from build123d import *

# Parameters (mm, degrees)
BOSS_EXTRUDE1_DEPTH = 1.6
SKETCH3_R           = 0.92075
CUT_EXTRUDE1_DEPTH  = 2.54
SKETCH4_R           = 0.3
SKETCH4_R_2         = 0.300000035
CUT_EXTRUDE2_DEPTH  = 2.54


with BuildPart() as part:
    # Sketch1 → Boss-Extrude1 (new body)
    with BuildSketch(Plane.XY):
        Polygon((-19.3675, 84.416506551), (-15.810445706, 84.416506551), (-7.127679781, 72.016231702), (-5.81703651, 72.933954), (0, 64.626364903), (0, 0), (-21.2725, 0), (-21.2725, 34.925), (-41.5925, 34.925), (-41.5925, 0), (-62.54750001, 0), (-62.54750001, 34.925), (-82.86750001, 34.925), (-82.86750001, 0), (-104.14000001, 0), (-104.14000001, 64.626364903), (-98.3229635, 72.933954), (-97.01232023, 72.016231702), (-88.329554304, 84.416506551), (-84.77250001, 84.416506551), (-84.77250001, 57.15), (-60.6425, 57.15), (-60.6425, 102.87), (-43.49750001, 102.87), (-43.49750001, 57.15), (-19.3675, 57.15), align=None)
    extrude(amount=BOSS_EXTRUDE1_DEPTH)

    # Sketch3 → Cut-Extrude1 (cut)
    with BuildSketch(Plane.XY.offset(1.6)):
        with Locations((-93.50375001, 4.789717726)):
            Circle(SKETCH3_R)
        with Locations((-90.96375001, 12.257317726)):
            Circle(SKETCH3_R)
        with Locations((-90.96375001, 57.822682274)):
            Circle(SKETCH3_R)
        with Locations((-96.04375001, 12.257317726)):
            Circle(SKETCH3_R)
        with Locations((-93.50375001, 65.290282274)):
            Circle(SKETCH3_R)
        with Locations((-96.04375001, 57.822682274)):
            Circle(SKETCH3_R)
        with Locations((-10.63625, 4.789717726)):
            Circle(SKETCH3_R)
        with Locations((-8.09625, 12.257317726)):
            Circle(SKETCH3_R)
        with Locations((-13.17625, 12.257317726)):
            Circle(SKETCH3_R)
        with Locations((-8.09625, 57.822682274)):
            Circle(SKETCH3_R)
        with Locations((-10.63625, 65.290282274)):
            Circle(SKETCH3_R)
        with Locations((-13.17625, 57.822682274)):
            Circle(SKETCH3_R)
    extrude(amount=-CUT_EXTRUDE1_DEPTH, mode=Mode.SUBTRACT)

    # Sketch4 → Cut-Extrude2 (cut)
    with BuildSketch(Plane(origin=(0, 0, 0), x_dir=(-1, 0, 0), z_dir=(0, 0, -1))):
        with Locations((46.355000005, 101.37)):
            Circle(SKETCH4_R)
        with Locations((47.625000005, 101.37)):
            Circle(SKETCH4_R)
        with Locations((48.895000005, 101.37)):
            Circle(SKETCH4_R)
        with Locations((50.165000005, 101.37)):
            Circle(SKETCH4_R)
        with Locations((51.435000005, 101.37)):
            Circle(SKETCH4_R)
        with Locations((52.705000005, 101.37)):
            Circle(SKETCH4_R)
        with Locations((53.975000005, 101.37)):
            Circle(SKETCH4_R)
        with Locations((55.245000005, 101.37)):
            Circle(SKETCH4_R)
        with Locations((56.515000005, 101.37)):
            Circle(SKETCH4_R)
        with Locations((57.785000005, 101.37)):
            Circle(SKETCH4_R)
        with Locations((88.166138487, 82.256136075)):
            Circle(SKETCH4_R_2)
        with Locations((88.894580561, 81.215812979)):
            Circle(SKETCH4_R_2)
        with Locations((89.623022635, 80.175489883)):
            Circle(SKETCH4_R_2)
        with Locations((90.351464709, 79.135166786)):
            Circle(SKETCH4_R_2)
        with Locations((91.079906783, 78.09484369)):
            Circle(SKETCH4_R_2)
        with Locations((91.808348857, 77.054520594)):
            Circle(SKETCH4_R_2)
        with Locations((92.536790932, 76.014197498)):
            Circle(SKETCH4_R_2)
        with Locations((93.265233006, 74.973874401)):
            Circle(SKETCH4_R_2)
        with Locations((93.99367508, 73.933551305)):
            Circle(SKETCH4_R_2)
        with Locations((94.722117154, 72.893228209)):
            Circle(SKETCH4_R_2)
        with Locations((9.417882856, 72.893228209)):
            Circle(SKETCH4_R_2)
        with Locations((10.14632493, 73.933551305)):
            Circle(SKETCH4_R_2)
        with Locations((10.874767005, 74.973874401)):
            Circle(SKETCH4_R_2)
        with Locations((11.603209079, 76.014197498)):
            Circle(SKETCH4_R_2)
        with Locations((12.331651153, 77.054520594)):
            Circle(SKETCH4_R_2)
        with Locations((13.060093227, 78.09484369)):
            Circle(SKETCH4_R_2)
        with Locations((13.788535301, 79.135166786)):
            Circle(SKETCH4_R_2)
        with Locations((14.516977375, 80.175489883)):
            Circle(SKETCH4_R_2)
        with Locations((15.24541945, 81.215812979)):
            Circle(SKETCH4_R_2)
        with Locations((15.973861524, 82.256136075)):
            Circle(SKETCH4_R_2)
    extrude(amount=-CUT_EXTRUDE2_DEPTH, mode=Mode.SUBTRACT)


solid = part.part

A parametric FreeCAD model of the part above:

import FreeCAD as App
import Part
import Sketcher
from FreeCAD import Vector
Q = App.Units.Quantity

doc = App.newDocument("Part")
body = doc.addObject("PartDesign::Body", "Body")

sketch1 = body.newObject("Sketcher::SketchObject", "Sketch")
sketch1.AttachmentSupport = (doc.getObject("XY_Plane"), [""])
sketch1.MapMode = "FlatFace"
sketch1.addGeometry(Part.LineSegment(Vector(-15.8, 84.4, 0), Vector(-19.4, 84.4, 0)), False)
sketch1.addGeometry(Part.LineSegment(Vector(-19.4, 84.4, 0), Vector(-19.4, 57.1, 0)), False)
sketch1.addGeometry(Part.LineSegment(Vector(-19.4, 57.1, 0), Vector(-43.5, 57.1, 0)), False)
sketch1.addGeometry(Part.LineSegment(Vector(-43.5, 57.1, 0), Vector(-43.5, 102.9, 0)), False)
sketch1.addGeometry(Part.LineSegment(Vector(-43.5, 102.9, 0), Vector(-60.6, 102.9, 0)), False)
sketch1.addGeometry(Part.LineSegment(Vector(-60.6, 102.9, 0), Vector(-60.6, 57.1, 0)), False)
sketch1.addGeometry(Part.LineSegment(Vector(-60.6, 57.1, 0), Vector(-84.8, 57.1, 0)), False)
sketch1.addGeometry(Part.LineSegment(Vector(-84.8, 57.1, 0), Vector(-84.8, 84.4, 0)), False)
sketch1.addGeometry(Part.LineSegment(Vector(-84.8, 84.4, 0), Vector(-88.3, 84.4, 0)), False)
sketch1.addGeometry(Part.LineSegment(Vector(-88.3, 84.4, 0), Vector(-97, 72, 0)), False)
sketch1.addGeometry(Part.LineSegment(Vector(-97, 72, 0), Vector(-98.3, 72.9, 0)), False)
sketch1.addGeometry(Part.LineSegment(Vector(-98.3, 72.9, 0), Vector(-104.1, 64.6, 0)), False)
sketch1.addGeometry(Part.LineSegment(Vector(-104.1, 64.6, 0), Vector(-104.1, 0, 0)), False)
sketch1.addGeometry(Part.LineSegment(Vector(-104.1, 0, 0), Vector(-82.9, 0, 0)), False)
sketch1.addGeometry(Part.LineSegment(Vector(-82.9, 0, 0), Vector(-82.9, 34.9, 0)), False)
sketch1.addGeometry(Part.LineSegment(Vector(-82.9, 34.9, 0), Vector(-62.5, 34.9, 0)), False)
sketch1.addGeometry(Part.LineSegment(Vector(-62.5, 34.9, 0), Vector(-62.5, 0, 0)), False)
sketch1.addGeometry(Part.LineSegment(Vector(-62.5, 0, 0), Vector(-41.6, 0, 0)), False)
sketch1.addGeometry(Part.LineSegment(Vector(-41.6, 0, 0), Vector(-41.6, 34.9, 0)), False)
sketch1.addGeometry(Part.LineSegment(Vector(-41.6, 34.9, 0), Vector(-21.3, 34.9, 0)), False)
sketch1.addGeometry(Part.LineSegment(Vector(-21.3, 34.9, 0), Vector(-21.3, 0, 0)), False)
sketch1.addGeometry(Part.LineSegment(Vector(-21.3, 0, 0), Vector(0, 0, 0)), False)
sketch1.addGeometry(Part.LineSegment(Vector(0, 0, 0), Vector(0, 64.6, 0)), False)
sketch1.addGeometry(Part.LineSegment(Vector(0, 64.6, 0), Vector(-5.8, 72.9, 0)), False)
sketch1.addGeometry(Part.LineSegment(Vector(-5.8, 72.9, 0), Vector(-7.1, 72, 0)), False)
sketch1.addGeometry(Part.LineSegment(Vector(-7.1, 72, 0), Vector(-15.8, 84.4, 0)), False)
sketch1.addConstraint(Sketcher.Constraint("Coincident", 0, 2, 1, 1))
sketch1.addConstraint(Sketcher.Constraint("Coincident", 1, 2, 2, 1))
sketch1.addConstraint(Sketcher.Constraint("Coincident", 2, 2, 3, 1))
sketch1.addConstraint(Sketcher.Constraint("Coincident", 3, 2, 4, 1))
sketch1.addConstraint(Sketcher.Constraint("Coincident", 4, 2, 5, 1))
sketch1.addConstraint(Sketcher.Constraint("Coincident", 5, 2, 6, 1))
sketch1.addConstraint(Sketcher.Constraint("Coincident", 6, 2, 7, 1))
sketch1.addConstraint(Sketcher.Constraint("Coincident", 7, 2, 8, 1))
sketch1.addConstraint(Sketcher.Constraint("Coincident", 8, 2, 9, 1))
sketch1.addConstraint(Sketcher.Constraint("Coincident", 9, 2, 10, 1))
sketch1.addConstraint(Sketcher.Constraint("Coincident", 10, 2, 11, 1))
sketch1.addConstraint(Sketcher.Constraint("Coincident", 11, 2, 12, 1))
sketch1.addConstraint(Sketcher.Constraint("Coincident", 12, 2, 13, 1))
sketch1.addConstraint(Sketcher.Constraint("Coincident", 13, 2, 14, 1))
sketch1.addConstraint(Sketcher.Constraint("Coincident", 14, 2, 15, 1))
sketch1.addConstraint(Sketcher.Constraint("Coincident", 15, 2, 16, 1))
sketch1.addConstraint(Sketcher.Constraint("Coincident", 16, 2, 17, 1))
sketch1.addConstraint(Sketcher.Constraint("Coincident", 17, 2, 18, 1))
sketch1.addConstraint(Sketcher.Constraint("Coincident", 18, 2, 19, 1))
sketch1.addConstraint(Sketcher.Constraint("Coincident", 19, 2, 20, 1))
sketch1.addConstraint(Sketcher.Constraint("Coincident", 20, 2, 21, 1))
sketch1.addConstraint(Sketcher.Constraint("Coincident", 21, 2, 22, 1))
sketch1.addConstraint(Sketcher.Constraint("Coincident", 22, 2, 23, 1))
sketch1.addConstraint(Sketcher.Constraint("Coincident", 23, 2, 24, 1))
sketch1.addConstraint(Sketcher.Constraint("Coincident", 24, 2, 25, 1))
sketch1.addConstraint(Sketcher.Constraint("Coincident", 25, 2, 0, 1))
sketch1.addConstraint(Sketcher.Constraint("Horizontal", 0))
sketch1.addConstraint(Sketcher.Constraint("Vertical", 1))
sketch1.addConstraint(Sketcher.Constraint("Horizontal", 2))
sketch1.addConstraint(Sketcher.Constraint("Vertical", 3))
sketch1.addConstraint(Sketcher.Constraint("Horizontal", 4))
sketch1.addConstraint(Sketcher.Constraint("Vertical", 5))
sketch1.addConstraint(Sketcher.Constraint("Horizontal", 6))
sketch1.addConstraint(Sketcher.Constraint("Vertical", 7))
sketch1.addConstraint(Sketcher.Constraint("Horizontal", 8))
sketch1.addConstraint(Sketcher.Constraint("Vertical", 12))
sketch1.addConstraint(Sketcher.Constraint("Horizontal", 13))
sketch1.addConstraint(Sketcher.Constraint("Vertical", 14))
sketch1.addConstraint(Sketcher.Constraint("Horizontal", 15))
sketch1.addConstraint(Sketcher.Constraint("Vertical", 16))
sketch1.addConstraint(Sketcher.Constraint("Horizontal", 17))
sketch1.addConstraint(Sketcher.Constraint("Vertical", 18))
sketch1.addConstraint(Sketcher.Constraint("Horizontal", 19))
sketch1.addConstraint(Sketcher.Constraint("Vertical", 20))
sketch1.addConstraint(Sketcher.Constraint("Horizontal", 21))
sketch1.addConstraint(Sketcher.Constraint("Vertical", 22))
sketch1.addConstraint(Sketcher.Constraint("Coincident", 21, 2, -1, 1))
sketch1.addConstraint(Sketcher.Constraint("PointOnObject", 12, 2, -1))
sketch1.addConstraint(Sketcher.Constraint("PointOnObject", 16, 2, -1))
sketch1.addConstraint(Sketcher.Constraint("Perpendicular", 9, 10))
sketch1.addConstraint(Sketcher.Constraint("Perpendicular", 10, 11))
sketch1.addConstraint(Sketcher.Constraint("Perpendicular", 23, 24))
sketch1.addConstraint(Sketcher.Constraint("Perpendicular", 24, 25))
sketch1.addConstraint(Sketcher.Constraint("Horizontal", 2, 2, 5, 2))
sketch1.addConstraint(Sketcher.Constraint("Horizontal", 0, 2, 7, 2))
sketch1.addConstraint(Sketcher.Constraint("Horizontal", 15, 2, 18, 2))
sketch1.addConstraint(Sketcher.Constraint("Horizontal", 11, 2, 22, 2))
sketch1.addConstraint(Sketcher.Constraint("Horizontal", 10, 2, 23, 2))
sketch1.addConstraint(Sketcher.Constraint("Horizontal", 9, 2, 24, 2))
sketch1.addConstraint(Sketcher.Constraint("Equal", 2, 6))
sketch1.addConstraint(Sketcher.Constraint("Equal", 0, 8))
sketch1.addConstraint(Sketcher.Constraint("Equal", 15, 19))
sketch1.addConstraint(Sketcher.Constraint("Equal", 13, 21))
sketch1.addConstraint(Sketcher.Constraint("Equal", 11, 23))
sketch1.addConstraint(Sketcher.Constraint("DistanceX", 15, 1, 15, 2, Q("0.8 in")))
sketch1.addConstraint(Sketcher.Constraint("DistanceY", 3, 1, 3, 2, Q("1.8 in")))
sketch1.addConstraint(Sketcher.Constraint("Angle", 9, Q("-125 deg")))
sketch1.addConstraint(Sketcher.Constraint("DistanceX", 2, 2, 2, 1, Q("0.95 in")))
sketch1.addConstraint(Sketcher.Constraint("DistanceX", 11, 2, -1, 1, Q("4.1 in")))
sketch1.addConstraint(Sketcher.Constraint("DistanceX", 4, 2, 4, 1, Q("0.675 in")))
sketch1.addConstraint(Sketcher.Constraint("DistanceX", 17, 1, 17, 2, Q("0.825 in")))
sketch1.addConstraint(Sketcher.Constraint("DistanceY", 14, 1, 14, 2, Q("1.375 in")))
sketch1.addConstraint(Sketcher.Constraint("DistanceY", -1, 1, 1, 2, Q("2.25 in")))
sketch1.addConstraint(Sketcher.Constraint("DistanceX", 10, 2, 9, 2, Q("0.0516001 in")))
sketch1.addConstraint(Sketcher.Constraint("Distance", 9, Q("15.13794 mm")))
sketch1.addConstraint(Sketcher.Constraint("DistanceX", 0, 2, 0, 1, Q("3.557054 mm")))
sketch1.addConstraint(Sketcher.Constraint("DistanceY", 1, 2, 1, 1, Q("27.266507 mm")))
pad1 = body.newObject("PartDesign::Pad", "Pad")
pad1.Profile = sketch1
pad1.Length = 1.6

sketch2 = body.newObject("Sketcher::SketchObject", "Sketch001")
sketch2.AttachmentSupport = (doc.getObject("XY_Plane"), [""])
sketch2.MapMode = "FlatFace"
sketch2.AttachmentOffset = App.Placement(Vector(0, 0, 1.6), App.Rotation())
sketch2.addGeometry(Part.Circle(Vector(-93.5, 4.8, 0), Vector(0, 0, 1), 0.9), False)
sketch2.addGeometry(Part.Circle(Vector(-91, 12.3, 0), Vector(0, 0, 1), 0.9), False)
sketch2.addGeometry(Part.Circle(Vector(-91, 57.8, 0), Vector(0, 0, 1), 0.9), False)
sketch2.addGeometry(Part.Circle(Vector(-96, 12.3, 0), Vector(0, 0, 1), 0.9), False)
sketch2.addGeometry(Part.Circle(Vector(-93.5, 65.3, 0), Vector(0, 0, 1), 0.9), False)
sketch2.addGeometry(Part.Circle(Vector(-96, 57.8, 0), Vector(0, 0, 1), 0.9), False)
sketch2.addGeometry(Part.Circle(Vector(-10.6, 4.8, 0), Vector(0, 0, 1), 0.9), False)
sketch2.addGeometry(Part.Circle(Vector(-8.1, 12.3, 0), Vector(0, 0, 1), 0.9), False)
sketch2.addGeometry(Part.Circle(Vector(-13.2, 12.3, 0), Vector(0, 0, 1), 0.9), False)
sketch2.addGeometry(Part.Circle(Vector(-8.1, 57.8, 0), Vector(0, 0, 1), 0.9), False)
sketch2.addGeometry(Part.Circle(Vector(-10.6, 65.3, 0), Vector(0, 0, 1), 0.9), False)
sketch2.addGeometry(Part.Circle(Vector(-13.2, 57.8, 0), Vector(0, 0, 1), 0.9), False)
sketch2.addConstraint(Sketcher.Constraint("Equal", 0, 1))
sketch2.addConstraint(Sketcher.Constraint("Equal", 1, 2))
sketch2.addConstraint(Sketcher.Constraint("Equal", 2, 3))
sketch2.addConstraint(Sketcher.Constraint("Equal", 3, 4))
sketch2.addConstraint(Sketcher.Constraint("Equal", 4, 5))
sketch2.addConstraint(Sketcher.Constraint("Equal", 5, 6))
sketch2.addConstraint(Sketcher.Constraint("Equal", 6, 7))
sketch2.addConstraint(Sketcher.Constraint("Equal", 7, 8))
sketch2.addConstraint(Sketcher.Constraint("Equal", 8, 9))
sketch2.addConstraint(Sketcher.Constraint("Equal", 9, 10))
sketch2.addConstraint(Sketcher.Constraint("Equal", 10, 11))
sketch2.addConstraint(Sketcher.Constraint("Horizontal", 1, 3, 3, 3))
sketch2.addConstraint(Sketcher.Constraint("Horizontal", 2, 3, 5, 3))
sketch2.addConstraint(Sketcher.Constraint("Horizontal", 0, 3, 6, 3))
sketch2.addConstraint(Sketcher.Constraint("Horizontal", 3, 3, 7, 3))
sketch2.addConstraint(Sketcher.Constraint("Horizontal", 7, 3, 8, 3))
sketch2.addConstraint(Sketcher.Constraint("Horizontal", 5, 3, 9, 3))
sketch2.addConstraint(Sketcher.Constraint("Horizontal", 4, 3, 10, 3))
sketch2.addConstraint(Sketcher.Constraint("Horizontal", 9, 3, 11, 3))
sketch2.addConstraint(Sketcher.Constraint("Vertical", 1, 3, 2, 3))
sketch2.addConstraint(Sketcher.Constraint("Vertical", 0, 3, 4, 3))
sketch2.addConstraint(Sketcher.Constraint("Vertical", 3, 3, 5, 3))
sketch2.addConstraint(Sketcher.Constraint("Vertical", 7, 3, 9, 3))
sketch2.addConstraint(Sketcher.Constraint("Vertical", 6, 3, 10, 3))
sketch2.addConstraint(Sketcher.Constraint("Vertical", 8, 3, 11, 3))
sketch2.addConstraint(Sketcher.Constraint("Diameter", 0, Q("0.0725 in")))
sketch2.addConstraint(Sketcher.Constraint("DistanceX", 0, 3, 1, 3, Q("0.1 in")))
sketch2.addConstraint(Sketcher.Constraint("DistanceX", 3, 3, 1, 3, Q("0.2 in")))
sketch2.addConstraint(Sketcher.Constraint("DistanceX", 6, 3, 7, 3, Q("0.1 in")))
sketch2.addConstraint(Sketcher.Constraint("DistanceX", 8, 3, 7, 3, Q("0.2 in")))
sketch2.addConstraint(Sketcher.Constraint("DistanceX", 3, 3, -1, 1, Q("3.78125 in")))
sketch2.addConstraint(Sketcher.Constraint("DistanceY", 0, 3, 1, 3, Q("0.294 in")))
sketch2.addConstraint(Sketcher.Constraint("DistanceY", 2, 3, 4, 3, Q("0.294 in")))
sketch2.addConstraint(Sketcher.Constraint("DistanceX", 1, 3, 8, 3, Q("3.0625 in")))
sketch2.addConstraint(Sketcher.Constraint("DistanceY", -1, 1, 0, 3, Q("4.789718 mm")))
sketch2.addConstraint(Sketcher.Constraint("DistanceY", -1, 1, 2, 3, Q("57.822682 mm")))
pocket1 = body.newObject("PartDesign::Pocket", "Pocket")
pocket1.Profile = sketch2
pocket1.Length = Q("0.1 in")

sketch3 = body.newObject("Sketcher::SketchObject", "Sketch002")
sketch3.AttachmentSupport = (doc.getObject("XY_Plane"), [""])
sketch3.MapMode = "FlatFace"
sketch3.addGeometry(Part.Circle(Vector(-46.36, 101.37, 0), Vector(0, 0, 1), 0.3), False)
sketch3.addGeometry(Part.Circle(Vector(-47.63, 101.37, 0), Vector(0, 0, 1), 0.3), False)
sketch3.addGeometry(Part.Circle(Vector(-48.9, 101.37, 0), Vector(0, 0, 1), 0.3), False)
sketch3.addGeometry(Part.Circle(Vector(-50.17, 101.37, 0), Vector(0, 0, 1), 0.3), False)
sketch3.addGeometry(Part.Circle(Vector(-51.44, 101.37, 0), Vector(0, 0, 1), 0.3), False)
sketch3.addGeometry(Part.Circle(Vector(-52.71, 101.37, 0), Vector(0, 0, 1), 0.3), False)
sketch3.addGeometry(Part.Circle(Vector(-53.98, 101.37, 0), Vector(0, 0, 1), 0.3), False)
sketch3.addGeometry(Part.Circle(Vector(-55.25, 101.37, 0), Vector(0, 0, 1), 0.3), False)
sketch3.addGeometry(Part.Circle(Vector(-56.52, 101.37, 0), Vector(0, 0, 1), 0.3), False)
sketch3.addGeometry(Part.Circle(Vector(-57.79, 101.37, 0), Vector(0, 0, 1), 0.3), False)
sketch3.addGeometry(Part.Circle(Vector(-88.17, 82.26, 0), Vector(0, 0, 1), 0.3), False)
sketch3.addGeometry(Part.Circle(Vector(-88.89, 81.22, 0), Vector(0, 0, 1), 0.3), False)
sketch3.addGeometry(Part.Circle(Vector(-89.62, 80.18, 0), Vector(0, 0, 1), 0.3), False)
sketch3.addGeometry(Part.Circle(Vector(-90.35, 79.14, 0), Vector(0, 0, 1), 0.3), False)
sketch3.addGeometry(Part.Circle(Vector(-91.08, 78.09, 0), Vector(0, 0, 1), 0.3), False)
sketch3.addGeometry(Part.Circle(Vector(-91.81, 77.05, 0), Vector(0, 0, 1), 0.3), False)
sketch3.addGeometry(Part.Circle(Vector(-92.54, 76.01, 0), Vector(0, 0, 1), 0.3), False)
sketch3.addGeometry(Part.Circle(Vector(-93.27, 74.97, 0), Vector(0, 0, 1), 0.3), False)
sketch3.addGeometry(Part.Circle(Vector(-93.99, 73.93, 0), Vector(0, 0, 1), 0.3), False)
sketch3.addGeometry(Part.Circle(Vector(-94.72, 72.89, 0), Vector(0, 0, 1), 0.3), False)
sketch3.addGeometry(Part.Circle(Vector(-9.42, 72.89, 0), Vector(0, 0, 1), 0.3), False)
sketch3.addGeometry(Part.Circle(Vector(-10.15, 73.93, 0), Vector(0, 0, 1), 0.3), False)
sketch3.addGeometry(Part.Circle(Vector(-10.87, 74.97, 0), Vector(0, 0, 1), 0.3), False)
sketch3.addGeometry(Part.Circle(Vector(-11.6, 76.01, 0), Vector(0, 0, 1), 0.3), False)
sketch3.addGeometry(Part.Circle(Vector(-12.33, 77.05, 0), Vector(0, 0, 1), 0.3), False)
sketch3.addGeometry(Part.Circle(Vector(-13.06, 78.09, 0), Vector(0, 0, 1), 0.3), False)
sketch3.addGeometry(Part.Circle(Vector(-13.79, 79.14, 0), Vector(0, 0, 1), 0.3), False)
sketch3.addGeometry(Part.Circle(Vector(-14.52, 80.18, 0), Vector(0, 0, 1), 0.3), False)
sketch3.addGeometry(Part.Circle(Vector(-15.25, 81.22, 0), Vector(0, 0, 1), 0.3), False)
sketch3.addGeometry(Part.Circle(Vector(-15.97, 82.26, 0), Vector(0, 0, 1), 0.3), False)
sketch3.addConstraint(Sketcher.Constraint("Equal", 0, 1))
sketch3.addConstraint(Sketcher.Constraint("Equal", 1, 2))
sketch3.addConstraint(Sketcher.Constraint("Equal", 2, 3))
sketch3.addConstraint(Sketcher.Constraint("Equal", 3, 4))
sketch3.addConstraint(Sketcher.Constraint("Equal", 4, 5))
sketch3.addConstraint(Sketcher.Constraint("Equal", 5, 6))
sketch3.addConstraint(Sketcher.Constraint("Equal", 6, 7))
sketch3.addConstraint(Sketcher.Constraint("Equal", 7, 8))
sketch3.addConstraint(Sketcher.Constraint("Equal", 8, 9))
sketch3.addConstraint(Sketcher.Constraint("Equal", 9, 10))
sketch3.addConstraint(Sketcher.Constraint("Equal", 10, 11))
sketch3.addConstraint(Sketcher.Constraint("Equal", 11, 12))
sketch3.addConstraint(Sketcher.Constraint("Equal", 12, 13))
sketch3.addConstraint(Sketcher.Constraint("Equal", 13, 14))
sketch3.addConstraint(Sketcher.Constraint("Equal", 14, 15))
sketch3.addConstraint(Sketcher.Constraint("Equal", 15, 16))
sketch3.addConstraint(Sketcher.Constraint("Equal", 16, 17))
sketch3.addConstraint(Sketcher.Constraint("Equal", 17, 18))
sketch3.addConstraint(Sketcher.Constraint("Equal", 18, 19))
sketch3.addConstraint(Sketcher.Constraint("Equal", 19, 20))
sketch3.addConstraint(Sketcher.Constraint("Equal", 20, 21))
sketch3.addConstraint(Sketcher.Constraint("Equal", 21, 22))
sketch3.addConstraint(Sketcher.Constraint("Equal", 22, 23))
sketch3.addConstraint(Sketcher.Constraint("Equal", 23, 24))
sketch3.addConstraint(Sketcher.Constraint("Equal", 24, 25))
sketch3.addConstraint(Sketcher.Constraint("Equal", 25, 26))
sketch3.addConstraint(Sketcher.Constraint("Equal", 26, 27))
sketch3.addConstraint(Sketcher.Constraint("Equal", 27, 28))
sketch3.addConstraint(Sketcher.Constraint("Equal", 28, 29))
sketch3.addConstraint(Sketcher.Constraint("Horizontal", 0, 3, 1, 3))
sketch3.addConstraint(Sketcher.Constraint("Horizontal", 1, 3, 2, 3))
sketch3.addConstraint(Sketcher.Constraint("Horizontal", 2, 3, 3, 3))
sketch3.addConstraint(Sketcher.Constraint("Horizontal", 3, 3, 4, 3))
sketch3.addConstraint(Sketcher.Constraint("Horizontal", 4, 3, 5, 3))
sketch3.addConstraint(Sketcher.Constraint("Horizontal", 5, 3, 6, 3))
sketch3.addConstraint(Sketcher.Constraint("Horizontal", 6, 3, 7, 3))
sketch3.addConstraint(Sketcher.Constraint("Horizontal", 7, 3, 8, 3))
sketch3.addConstraint(Sketcher.Constraint("Horizontal", 8, 3, 9, 3))
sketch3.addConstraint(Sketcher.Constraint("Horizontal", 19, 3, 20, 3))
sketch3.addConstraint(Sketcher.Constraint("Horizontal", 18, 3, 21, 3))
sketch3.addConstraint(Sketcher.Constraint("Horizontal", 17, 3, 22, 3))
sketch3.addConstraint(Sketcher.Constraint("Horizontal", 16, 3, 23, 3))
sketch3.addConstraint(Sketcher.Constraint("Horizontal", 15, 3, 24, 3))
sketch3.addConstraint(Sketcher.Constraint("Horizontal", 14, 3, 25, 3))
sketch3.addConstraint(Sketcher.Constraint("Horizontal", 13, 3, 26, 3))
sketch3.addConstraint(Sketcher.Constraint("Horizontal", 12, 3, 27, 3))
sketch3.addConstraint(Sketcher.Constraint("Horizontal", 11, 3, 28, 3))
sketch3.addConstraint(Sketcher.Constraint("Horizontal", 10, 3, 29, 3))
sketch3.addConstraint(Sketcher.Constraint("DistanceX", 2, 3, 0, 3, Q("0.1 in")))
sketch3.addConstraint(Sketcher.Constraint("DistanceX", 3, 3, 1, 3, Q("0.1 in")))
sketch3.addConstraint(Sketcher.Constraint("DistanceX", 4, 3, 2, 3, Q("0.1 in")))
sketch3.addConstraint(Sketcher.Constraint("DistanceX", 5, 3, 3, 3, Q("0.1 in")))
sketch3.addConstraint(Sketcher.Constraint("DistanceX", 6, 3, 4, 3, Q("0.1 in")))
sketch3.addConstraint(Sketcher.Constraint("DistanceX", 7, 3, 5, 3, Q("0.1 in")))
sketch3.addConstraint(Sketcher.Constraint("DistanceX", 8, 3, 6, 3, Q("0.1 in")))
sketch3.addConstraint(Sketcher.Constraint("DistanceX", 9, 3, 7, 3, Q("0.1 in")))
sketch3.addConstraint(Sketcher.Constraint("Diameter", 0, Q("0.6 mm")))
sketch3.addConstraint(Sketcher.Constraint("DistanceX", 1, 3, 0, 3, Q("0.05 in")))
sketch3.addConstraint(Sketcher.Constraint("DistanceX", 0, 3, -1, 1, Q("1.825 in")))
sketch3.addConstraint(Sketcher.Constraint("DistanceY", -1, 1, 14, 3, Q("3.0746001 in")))
sketch3.addConstraint(Sketcher.Constraint("DistanceY", -1, 1, 0, 3, Q("101.37 mm")))
sketch3.addConstraint(Sketcher.Constraint("DistanceX", 10, 3, -1, 1, Q("88.166138 mm")))
sketch3.addConstraint(Sketcher.Constraint("DistanceX", 11, 3, -1, 1, Q("88.894581 mm")))
sketch3.addConstraint(Sketcher.Constraint("DistanceY", -1, 1, 12, 3, Q("80.17549 mm")))
sketch3.addConstraint(Sketcher.Constraint("DistanceX", 15, 3, -1, 1, Q("91.808349 mm")))
sketch3.addConstraint(Sketcher.Constraint("DistanceY", -1, 1, 15, 3, Q("77.054521 mm")))
sketch3.addConstraint(Sketcher.Constraint("DistanceX", 16, 3, -1, 1, Q("92.536791 mm")))
sketch3.addConstraint(Sketcher.Constraint("DistanceY", -1, 1, 18, 3, Q("73.933551 mm")))
sketch3.addConstraint(Sketcher.Constraint("DistanceY", -1, 1, 19, 3, Q("72.893228 mm")))
sketch3.addConstraint(Sketcher.Constraint("DistanceX", 23, 3, -1, 1, Q("11.603209 mm")))
sketch3.addConstraint(Sketcher.Constraint("DistanceX", 24, 3, -1, 1, Q("12.331651 mm")))
sketch3.addConstraint(Sketcher.Constraint("DistanceX", 28, 3, -1, 1, Q("15.245419 mm")))
sketch3.addConstraint(Sketcher.Constraint("DistanceX", 29, 3, -1, 1, Q("15.973862 mm")))
sketch3.addConstraint(Sketcher.Constraint("DistanceY", 13, 3, 10, 3, Q("3.120969 mm")))
sketch3.addConstraint(Sketcher.Constraint("DistanceY", 14, 3, 11, 3, Q("3.120969 mm")))
sketch3.addConstraint(Sketcher.Constraint("DistanceX", 14, 3, 10, 3, Q("2.913768 mm")))
sketch3.addConstraint(Sketcher.Constraint("DistanceY", 16, 3, 13, 3, Q("3.120969 mm")))
sketch3.addConstraint(Sketcher.Constraint("DistanceX", 16, 3, 12, 3, Q("2.913768 mm")))
sketch3.addConstraint(Sketcher.Constraint("DistanceY", 17, 3, 14, 3, Q("3.120969 mm")))
sketch3.addConstraint(Sketcher.Constraint("DistanceX", 17, 3, 13, 3, Q("2.913768 mm")))
sketch3.addConstraint(Sketcher.Constraint("DistanceX", 17, 3, 12, 3, Q("3.64221 mm")))
sketch3.addConstraint(Sketcher.Constraint("DistanceX", 18, 3, 14, 3, Q("2.913768 mm")))
sketch3.addConstraint(Sketcher.Constraint("DistanceY", 19, 3, 16, 3, Q("3.120969 mm")))
sketch3.addConstraint(Sketcher.Constraint("DistanceX", 19, 3, 15, 3, Q("2.913768 mm")))
sketch3.addConstraint(Sketcher.Constraint("DistanceX", 24, 3, 20, 3, Q("2.913768 mm")))
sketch3.addConstraint(Sketcher.Constraint("DistanceX", 25, 3, 21, 3, Q("2.913768 mm")))
sketch3.addConstraint(Sketcher.Constraint("DistanceX", 25, 3, 20, 3, Q("3.64221 mm")))
sketch3.addConstraint(Sketcher.Constraint("DistanceX", 26, 3, 22, 3, Q("2.913768 mm")))
sketch3.addConstraint(Sketcher.Constraint("DistanceX", 26, 3, 21, 3, Q("3.64221 mm")))
sketch3.addConstraint(Sketcher.Constraint("DistanceX", 27, 3, 23, 3, Q("2.913768 mm")))
pocket2 = body.newObject("PartDesign::Pocket", "Pocket001")
pocket2.Profile = sketch3
pocket2.Length = Q("0.1 in")
pocket2.Reversed = True

doc.recompute()
